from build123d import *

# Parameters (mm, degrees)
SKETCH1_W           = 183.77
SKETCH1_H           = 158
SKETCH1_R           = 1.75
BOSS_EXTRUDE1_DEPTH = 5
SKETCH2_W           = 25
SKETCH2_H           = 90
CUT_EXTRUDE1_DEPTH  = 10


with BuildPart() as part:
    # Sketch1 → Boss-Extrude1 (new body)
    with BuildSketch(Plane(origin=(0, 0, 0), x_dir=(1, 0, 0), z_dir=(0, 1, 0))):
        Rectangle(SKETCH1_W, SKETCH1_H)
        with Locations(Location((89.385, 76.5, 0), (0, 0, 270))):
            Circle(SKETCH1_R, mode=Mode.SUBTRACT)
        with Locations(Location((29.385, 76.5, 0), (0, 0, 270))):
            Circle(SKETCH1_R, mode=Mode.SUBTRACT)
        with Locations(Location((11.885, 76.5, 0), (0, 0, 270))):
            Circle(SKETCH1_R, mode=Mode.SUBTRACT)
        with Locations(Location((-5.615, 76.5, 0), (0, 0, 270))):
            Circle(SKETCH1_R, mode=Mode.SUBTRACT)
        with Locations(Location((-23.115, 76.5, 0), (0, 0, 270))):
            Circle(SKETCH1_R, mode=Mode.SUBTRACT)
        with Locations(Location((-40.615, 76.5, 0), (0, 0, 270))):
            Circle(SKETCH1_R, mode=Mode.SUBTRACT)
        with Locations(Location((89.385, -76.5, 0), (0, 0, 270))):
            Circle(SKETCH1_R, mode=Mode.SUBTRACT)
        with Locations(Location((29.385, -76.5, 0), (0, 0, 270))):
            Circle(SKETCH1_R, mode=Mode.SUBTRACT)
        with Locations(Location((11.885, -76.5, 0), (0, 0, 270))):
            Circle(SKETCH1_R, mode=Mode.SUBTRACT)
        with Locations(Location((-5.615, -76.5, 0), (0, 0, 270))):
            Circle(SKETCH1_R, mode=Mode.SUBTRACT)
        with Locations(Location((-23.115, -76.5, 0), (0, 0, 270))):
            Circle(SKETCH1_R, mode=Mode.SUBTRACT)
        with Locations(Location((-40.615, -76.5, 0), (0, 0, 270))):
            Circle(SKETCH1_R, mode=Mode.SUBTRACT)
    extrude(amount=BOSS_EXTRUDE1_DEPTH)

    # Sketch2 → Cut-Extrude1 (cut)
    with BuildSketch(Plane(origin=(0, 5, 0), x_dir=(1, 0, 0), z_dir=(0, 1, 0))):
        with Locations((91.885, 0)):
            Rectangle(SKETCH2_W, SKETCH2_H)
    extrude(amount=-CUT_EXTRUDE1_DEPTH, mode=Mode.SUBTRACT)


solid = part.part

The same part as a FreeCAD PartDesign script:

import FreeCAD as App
import Part
import Sketcher
from FreeCAD import Vector
Q = App.Units.Quantity


def add_polygon(sketch, points):
    """Adds a closed chain of lines whose ends are joined by coincident constraints."""
    first, n = sketch.GeometryCount, len(points)
    for a, b in zip(points, points[1:] + points[:1]):
        sketch.addGeometry(Part.LineSegment(App.Vector(*a, 0), App.Vector(*b, 0)), False)
    for i in range(n):
        sketch.addConstraint(Sketcher.Constraint("Coincident", first + i, 2, first + (i + 1) % n, 1))

doc = App.newDocument("Part")
body = doc.addObject("PartDesign::Body", "Body")

# Sketch on XZ plane
sketch1 = doc.addObject("Sketcher::SketchObject", "Sketch")
body.addObject(sketch1)
sketch1.AttachmentSupport = (doc.XZ_Plane, [""])
sketch1.MapMode = "FlatFace"
add_polygon(sketch1, [(-91.9, -79), (-91.9, 79), (91.9, 79), (91.9, -79)])  # lines 0-3
sketch1.addGeometry(Part.Circle(Vector(-40.6, 76.5, 0), Vector(0, 0, 1), 1.8), False)  # 4
sketch1.addGeometry(Part.Circle(Vector(-23.1, 76.5, 0), Vector(0, 0, 1), 1.8), False)  # 5
sketch1.addGeometry(Part.Circle(Vector(-5.6, 76.5, 0), Vector(0, 0, 1), 1.8), False)  # 6
sketch1.addGeometry(Part.Circle(Vector(11.9, 76.5, 0), Vector(0, 0, 1), 1.8), False)  # 7
sketch1.addGeometry(Part.Circle(Vector(29.4, 76.5, 0), Vector(0, 0, 1), 1.8), False)  # 8
sketch1.addGeometry(Part.Circle(Vector(89.4, 76.5, 0), Vector(0, 0, 1), 1.8), False)  # 9
sketch1.addGeometry(Part.Circle(Vector(-40.6, -76.5, 0), Vector(0, 0, 1), 1.8), False)  # 10
sketch1.addGeometry(Part.Circle(Vector(-23.1, -76.5, 0), Vector(0, 0, 1), 1.8), False)  # 11
sketch1.addGeometry(Part.Circle(Vector(-5.6, -76.5, 0), Vector(0, 0, 1), 1.8), False)  # 12
sketch1.addGeometry(Part.Circle(Vector(11.9, -76.5, 0), Vector(0, 0, 1), 1.8), False)  # 13
sketch1.addGeometry(Part.Circle(Vector(29.4, -76.5, 0), Vector(0, 0, 1), 1.8), False)  # 14
sketch1.addGeometry(Part.Circle(Vector(89.4, -76.5, 0), Vector(0, 0, 1), 1.8), False)  # 15
sketch1.addConstraint(Sketcher.Constraint("Vertical", 0))
sketch1.addConstraint(Sketcher.Constraint("Horizontal", 1))
sketch1.addConstraint(Sketcher.Constraint("Vertical", 2))
sketch1.addConstraint(Sketcher.Constraint("Horizontal", 3))
sketch1.addConstraint(Sketcher.Constraint("Equal", 4, 5))
sketch1.addConstraint(Sketcher.Constraint("Equal", 5, 6))
sketch1.addConstraint(Sketcher.Constraint("Equal", 6, 7))
sketch1.addConstraint(Sketcher.Constraint("Equal", 7, 8))
sketch1.addConstraint(Sketcher.Constraint("Equal", 8, 9))
sketch1.addConstraint(Sketcher.Constraint("Equal", 9, 10))
sketch1.addConstraint(Sketcher.Constraint("Equal", 10, 11))
sketch1.addConstraint(Sketcher.Constraint("Equal", 11, 12))
sketch1.addConstraint(Sketcher.Constraint("Equal", 12, 13))
sketch1.addConstraint(Sketcher.Constraint("Equal", 13, 14))
sketch1.addConstraint(Sketcher.Constraint("Equal", 14, 15))
sketch1.addConstraint(Sketcher.Constraint("Symmetric", 0, 2, 2, 2, -1, 1))
sketch1.addConstraint(Sketcher.Constraint("Symmetric", 4, 3, 10, 3, -1))
sketch1.addConstraint(Sketcher.Constraint("Symmetric", 5, 3, 11, 3, -1))
sketch1.addConstraint(Sketcher.Constraint("Symmetric", 6, 3, 12, 3, -1))
sketch1.addConstraint(Sketcher.Constraint("Symmetric", 7, 3, 13, 3, -1))
sketch1.addConstraint(Sketcher.Constraint("Symmetric", 8, 3, 14, 3, -1))
sketch1.addConstraint(Sketcher.Constraint("Symmetric", 9, 3, 15, 3, -1))
sketch1.addConstraint(Sketcher.Constraint("Horizontal", 4, 3, 5, 3))
sketch1.addConstraint(Sketcher.Constraint("Horizontal", 5, 3, 6, 3))
sketch1.addConstraint(Sketcher.Constraint("Horizontal", 6, 3, 7, 3))
sketch1.addConstraint(Sketcher.Constraint("Horizontal", 7, 3, 8, 3))
sketch1.addConstraint(Sketcher.Constraint("Horizontal", 8, 3, 9, 3))
sketch1.addConstraint(Sketcher.Constraint("Diameter", 4, Q("3.5 mm")))
sketch1.addConstraint(Sketcher.Constraint("DistanceY", 0, 1, 0, 2, Q("158 mm")))
sketch1.addConstraint(Sketcher.Constraint("DistanceX", 4, 3, 6, 3, Q("35 mm")))
sketch1.addConstraint(Sketcher.Constraint("DistanceX", 5, 3, 7, 3, Q("35 mm")))
sketch1.addConstraint(Sketcher.Constraint("DistanceX", 6, 3, 8, 3, Q("35 mm")))
sketch1.addConstraint(Sketcher.Constraint("DistanceX", 8, 3, 9, 3, Q("60 mm")))
sketch1.addConstraint(Sketcher.Constraint("DistanceY", 10, 3, 4, 3, Q("153 mm")))
sketch1.addConstraint(Sketcher.Constraint("DistanceX", 7, 3, 1, 2, Q("80 mm")))
sketch1.addConstraint(Sketcher.Constraint("DistanceX", 1, 1, 1, 2, Q("183.77 mm")))
sketch1.addConstraint(Sketcher.Constraint("DistanceX", 4, 3, 5, 3, Q("17.5 mm")))
pad1 = doc.addObject("PartDesign::Pad", "Pad")
body.addObject(pad1)
pad1.Profile = sketch1
pad1.Length = 5
pad1.Reversed = True

# Sketch on XZ plane
sketch2 = doc.addObject("Sketcher::SketchObject", "Sketch001")
body.addObject(sketch2)
sketch2.AttachmentSupport = (doc.XZ_Plane, [""])
sketch2.MapMode = "FlatFace"
sketch2.AttachmentOffset = App.Placement(Vector(0, 0, -5), App.Rotation())
add_polygon(sketch2, [(79, -45), (79, 45), (104, 45), (104, -45)])  # lines 0-3
sketch2.addConstraint(Sketcher.Constraint("Vertical", 0))
sketch2.addConstraint(Sketcher.Constraint("Horizontal", 1))
sketch2.addConstraint(Sketcher.Constraint("Vertical", 2))
sketch2.addConstraint(Sketcher.Constraint("Horizontal", 3))
sketch2.addConstraint(Sketcher.Constraint("DistanceX", 1, 1, 1, 2, Q("25 mm")))
sketch2.addConstraint(Sketcher.Constraint("DistanceY", 0, 1, 0, 2, Q("90 mm")))
sketch2.addConstraint(Sketcher.Constraint("DistanceY", -1, 1, 0, 2, Q("45 mm")))
sketch2.addConstraint(Sketcher.Constraint("DistanceX", -1, 1, 0, 2, Q("79.385 mm")))
pocket1 = doc.addObject("PartDesign::Pocket", "Pocket")
body.addObject(pocket1)
pocket1.Profile = sketch2
pocket1.Length = 10
pocket1.Reversed = True

doc.recompute()
